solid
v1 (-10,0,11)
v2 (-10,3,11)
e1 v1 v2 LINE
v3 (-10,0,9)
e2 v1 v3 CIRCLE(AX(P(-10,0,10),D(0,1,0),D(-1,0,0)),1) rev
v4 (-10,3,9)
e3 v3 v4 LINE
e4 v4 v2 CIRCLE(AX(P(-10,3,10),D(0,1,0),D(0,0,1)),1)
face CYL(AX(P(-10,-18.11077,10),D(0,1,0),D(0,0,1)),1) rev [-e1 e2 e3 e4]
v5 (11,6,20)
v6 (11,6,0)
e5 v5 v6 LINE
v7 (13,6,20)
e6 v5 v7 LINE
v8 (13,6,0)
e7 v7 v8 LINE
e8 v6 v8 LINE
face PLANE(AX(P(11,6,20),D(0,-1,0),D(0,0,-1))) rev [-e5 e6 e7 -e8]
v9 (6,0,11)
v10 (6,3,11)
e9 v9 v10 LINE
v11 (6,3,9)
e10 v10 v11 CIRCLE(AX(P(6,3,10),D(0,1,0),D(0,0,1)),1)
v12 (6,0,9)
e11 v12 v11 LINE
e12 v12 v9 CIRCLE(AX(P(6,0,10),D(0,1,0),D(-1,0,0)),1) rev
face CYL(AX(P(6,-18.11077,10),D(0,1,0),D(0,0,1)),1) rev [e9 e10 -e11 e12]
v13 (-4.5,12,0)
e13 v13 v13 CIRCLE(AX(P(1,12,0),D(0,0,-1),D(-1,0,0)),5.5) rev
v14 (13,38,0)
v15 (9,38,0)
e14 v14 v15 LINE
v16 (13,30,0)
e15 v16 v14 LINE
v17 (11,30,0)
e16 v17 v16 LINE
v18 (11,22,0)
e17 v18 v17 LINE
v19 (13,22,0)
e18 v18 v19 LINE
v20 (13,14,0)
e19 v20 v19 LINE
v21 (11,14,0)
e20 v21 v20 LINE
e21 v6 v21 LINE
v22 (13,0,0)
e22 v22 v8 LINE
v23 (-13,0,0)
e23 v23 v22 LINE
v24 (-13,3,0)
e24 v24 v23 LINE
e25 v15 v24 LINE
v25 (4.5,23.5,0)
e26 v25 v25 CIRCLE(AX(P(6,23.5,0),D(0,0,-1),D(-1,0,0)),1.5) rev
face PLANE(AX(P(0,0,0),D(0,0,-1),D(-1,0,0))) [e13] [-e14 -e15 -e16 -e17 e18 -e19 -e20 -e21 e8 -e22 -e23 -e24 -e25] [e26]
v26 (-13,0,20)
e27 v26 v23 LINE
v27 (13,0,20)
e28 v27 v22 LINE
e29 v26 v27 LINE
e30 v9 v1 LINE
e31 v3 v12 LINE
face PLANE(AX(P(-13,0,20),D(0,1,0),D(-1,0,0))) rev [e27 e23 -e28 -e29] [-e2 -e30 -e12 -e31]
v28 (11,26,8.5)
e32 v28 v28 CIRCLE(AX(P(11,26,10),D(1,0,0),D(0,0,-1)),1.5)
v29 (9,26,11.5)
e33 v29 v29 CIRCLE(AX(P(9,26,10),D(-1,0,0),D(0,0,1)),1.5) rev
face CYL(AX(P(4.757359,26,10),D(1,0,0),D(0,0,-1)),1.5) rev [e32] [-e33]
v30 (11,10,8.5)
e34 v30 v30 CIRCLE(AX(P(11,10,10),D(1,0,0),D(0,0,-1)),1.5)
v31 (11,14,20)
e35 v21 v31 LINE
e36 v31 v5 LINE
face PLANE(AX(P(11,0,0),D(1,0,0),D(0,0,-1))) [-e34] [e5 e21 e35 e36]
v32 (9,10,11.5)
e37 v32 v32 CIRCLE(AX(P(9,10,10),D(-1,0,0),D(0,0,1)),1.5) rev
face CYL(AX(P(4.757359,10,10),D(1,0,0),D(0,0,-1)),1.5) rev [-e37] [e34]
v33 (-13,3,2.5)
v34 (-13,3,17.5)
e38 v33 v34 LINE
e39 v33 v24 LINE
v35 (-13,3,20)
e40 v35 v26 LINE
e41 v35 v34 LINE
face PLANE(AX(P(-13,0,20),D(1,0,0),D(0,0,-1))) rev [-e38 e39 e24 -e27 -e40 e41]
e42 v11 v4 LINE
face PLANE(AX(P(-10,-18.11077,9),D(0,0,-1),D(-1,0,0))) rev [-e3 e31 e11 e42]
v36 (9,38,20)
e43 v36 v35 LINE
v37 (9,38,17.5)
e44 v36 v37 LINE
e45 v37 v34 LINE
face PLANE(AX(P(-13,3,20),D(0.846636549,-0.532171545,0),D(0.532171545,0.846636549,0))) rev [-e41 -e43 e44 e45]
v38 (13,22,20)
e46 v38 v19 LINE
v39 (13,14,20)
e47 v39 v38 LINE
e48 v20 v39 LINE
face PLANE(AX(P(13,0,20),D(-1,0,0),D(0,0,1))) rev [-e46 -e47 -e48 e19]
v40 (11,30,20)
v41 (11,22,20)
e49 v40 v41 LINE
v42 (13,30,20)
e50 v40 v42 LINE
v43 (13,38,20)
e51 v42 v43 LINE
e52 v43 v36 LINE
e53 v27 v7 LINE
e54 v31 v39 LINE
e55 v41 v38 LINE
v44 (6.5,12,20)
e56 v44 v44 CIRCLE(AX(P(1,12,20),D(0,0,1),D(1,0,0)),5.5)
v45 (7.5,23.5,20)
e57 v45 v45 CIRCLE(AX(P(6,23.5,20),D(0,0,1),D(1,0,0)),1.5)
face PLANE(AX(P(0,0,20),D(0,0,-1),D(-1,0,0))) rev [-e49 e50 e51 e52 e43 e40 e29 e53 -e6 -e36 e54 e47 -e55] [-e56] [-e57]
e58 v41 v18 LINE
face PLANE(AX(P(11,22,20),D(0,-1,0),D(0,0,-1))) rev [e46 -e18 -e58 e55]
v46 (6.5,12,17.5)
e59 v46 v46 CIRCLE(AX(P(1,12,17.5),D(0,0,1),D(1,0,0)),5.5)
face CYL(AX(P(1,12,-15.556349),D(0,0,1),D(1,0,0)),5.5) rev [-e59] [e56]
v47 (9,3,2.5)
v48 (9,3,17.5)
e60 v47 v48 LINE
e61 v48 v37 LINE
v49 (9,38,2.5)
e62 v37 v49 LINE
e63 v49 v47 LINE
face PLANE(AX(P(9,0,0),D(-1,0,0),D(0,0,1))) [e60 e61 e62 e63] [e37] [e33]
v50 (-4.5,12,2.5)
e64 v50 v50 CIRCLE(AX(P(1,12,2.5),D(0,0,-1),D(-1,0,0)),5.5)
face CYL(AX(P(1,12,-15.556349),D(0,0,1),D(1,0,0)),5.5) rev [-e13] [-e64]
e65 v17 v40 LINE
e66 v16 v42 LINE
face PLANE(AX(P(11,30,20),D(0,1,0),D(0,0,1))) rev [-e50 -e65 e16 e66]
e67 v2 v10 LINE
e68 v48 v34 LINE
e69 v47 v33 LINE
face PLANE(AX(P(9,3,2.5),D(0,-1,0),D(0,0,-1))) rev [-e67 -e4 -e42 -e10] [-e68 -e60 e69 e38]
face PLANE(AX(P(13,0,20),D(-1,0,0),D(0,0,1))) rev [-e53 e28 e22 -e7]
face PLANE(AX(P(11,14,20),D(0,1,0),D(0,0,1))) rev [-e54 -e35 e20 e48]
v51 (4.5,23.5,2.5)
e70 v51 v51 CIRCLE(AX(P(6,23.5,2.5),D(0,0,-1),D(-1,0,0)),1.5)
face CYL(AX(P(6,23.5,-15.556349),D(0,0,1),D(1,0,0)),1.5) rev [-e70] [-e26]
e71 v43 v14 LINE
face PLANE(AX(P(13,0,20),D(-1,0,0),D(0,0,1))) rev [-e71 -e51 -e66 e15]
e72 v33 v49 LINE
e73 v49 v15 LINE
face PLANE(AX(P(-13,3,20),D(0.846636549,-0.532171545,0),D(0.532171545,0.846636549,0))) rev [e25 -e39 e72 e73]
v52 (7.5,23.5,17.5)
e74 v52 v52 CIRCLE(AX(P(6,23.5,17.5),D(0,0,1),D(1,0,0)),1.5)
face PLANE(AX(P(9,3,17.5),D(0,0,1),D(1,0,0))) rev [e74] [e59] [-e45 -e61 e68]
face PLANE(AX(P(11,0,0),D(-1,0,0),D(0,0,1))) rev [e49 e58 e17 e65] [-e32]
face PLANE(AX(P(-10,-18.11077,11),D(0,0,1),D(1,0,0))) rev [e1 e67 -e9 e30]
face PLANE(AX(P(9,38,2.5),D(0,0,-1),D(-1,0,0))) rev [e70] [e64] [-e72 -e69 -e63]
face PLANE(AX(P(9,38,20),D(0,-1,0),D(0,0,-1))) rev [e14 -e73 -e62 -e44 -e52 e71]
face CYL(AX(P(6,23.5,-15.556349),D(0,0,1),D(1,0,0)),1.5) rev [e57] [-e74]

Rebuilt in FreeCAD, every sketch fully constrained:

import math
import FreeCAD as App
import Part
import Sketcher
from FreeCAD import Vector
Q = App.Units.Quantity

doc = App.newDocument("Part")
body = doc.addObject("PartDesign::Body", "Body")

# Sketch on XY plane
sketch1 = doc.addObject("Sketcher::SketchObject", "Sketch")
body.addObject(sketch1)
sketch1.AttachmentSupport = (doc.XY_Plane, [""])
sketch1.MapMode = "FlatFace"
sketch1.addGeometry(Part.LineSegment(Vector(-13, 0, 0), Vector(13, 0, 0)), False)
sketch1.addGeometry(Part.LineSegment(Vector(13, 0, 0), Vector(13, 38, 0)), False)
sketch1.addGeometry(Part.LineSegment(Vector(13, 38, 0), Vector(9, 38, 0)), False)
sketch1.addGeometry(Part.LineSegment(Vector(9, 38, 0), Vector(-13, 3, 0)), False)
sketch1.addGeometry(Part.LineSegment(Vector(-13, 3, 0), Vector(-13, 0, 0)), False)
sketch1.addConstraint(Sketcher.Constraint("Coincident", 0, 2, 1, 1))
sketch1.addConstraint(Sketcher.Constraint("Coincident", 1, 2, 2, 1))
sketch1.addConstraint(Sketcher.Constraint("Coincident", 2, 2, 3, 1))
sketch1.addConstraint(Sketcher.Constraint("Coincident", 3, 2, 4, 1))
sketch1.addConstraint(Sketcher.Constraint("Coincident", 4, 2, 0, 1))
sketch1.addConstraint(Sketcher.Constraint("Horizontal", 0))
sketch1.addConstraint(Sketcher.Constraint("Vertical", 1))
sketch1.addConstraint(Sketcher.Constraint("Horizontal", 2))
sketch1.addConstraint(Sketcher.Constraint("Vertical", 4))
sketch1.addConstraint(Sketcher.Constraint("Symmetric", 0, 2, 4, 2, -1, 1))
sketch1.addConstraint(Sketcher.Constraint("DistanceX", 0, 1, 0, 2, Q("26 mm")))
sketch1.addConstraint(Sketcher.Constraint("DistanceX", 2, 2, 2, 1, Q("4 mm")))
sketch1.addConstraint(Sketcher.Constraint("DistanceY", 1, 1, 1, 2, Q("38 mm")))
sketch1.addConstraint(Sketcher.Constraint("DistanceY", 4, 2, 4, 1, Q("3 mm")))
pad1 = doc.addObject("PartDesign::Pad", "Pad")
body.addObject(pad1)
pad1.Profile = sketch1
pad1.Length = 20

# Sketch on YZ plane
sketch2 = doc.addObject("Sketcher::SketchObject", "Sketch001")
body.addObject(sketch2)
sketch2.AttachmentSupport = (doc.YZ_Plane, [""])
sketch2.MapMode = "FlatFace"
sketch2.AttachmentOffset = App.Placement(Vector(0, 0, 13), App.Rotation())
sketch2.addGeometry(Part.LineSegment(Vector(14, 20, 0), Vector(6, 20, 0)), False)
sketch2.addGeometry(Part.LineSegment(Vector(6, 20, 0), Vector(6, 0, 0)), False)
sketch2.addGeometry(Part.LineSegment(Vector(6, 0, 0), Vector(14, 0, 0)), False)
sketch2.addGeometry(Part.LineSegment(Vector(14, 0, 0), Vector(14, 20, 0)), False)
sketch2.addGeometry(Part.LineSegment(Vector(30, 20, 0), Vector(22, 20, 0)), False)
sketch2.addGeometry(Part.LineSegment(Vector(22, 20, 0), Vector(22, 0, 0)), False)
sketch2.addGeometry(Part.LineSegment(Vector(22, 0, 0), Vector(30, 0, 0)), False)
sketch2.addGeometry(Part.LineSegment(Vector(30, 0, 0), Vector(30, 20, 0)), False)
sketch2.addConstraint(Sketcher.Constraint("Coincident", 0, 2, 1, 1))
sketch2.addConstraint(Sketcher.Constraint("Coincident", 1, 2, 2, 1))
sketch2.addConstraint(Sketcher.Constraint("Coincident", 2, 2, 3, 1))
sketch2.addConstraint(Sketcher.Constraint("Coincident", 3, 2, 0, 1))
sketch2.addConstraint(Sketcher.Constraint("Coincident", 4, 2, 5, 1))
sketch2.addConstraint(Sketcher.Constraint("Coincident", 5, 2, 6, 1))
sketch2.addConstraint(Sketcher.Constraint("Coincident", 6, 2, 7, 1))
sketch2.addConstraint(Sketcher.Constraint("Coincident", 7, 2, 4, 1))
sketch2.addConstraint(Sketcher.Constraint("Horizontal", 0))
sketch2.addConstraint(Sketcher.Constraint("Vertical", 1))
sketch2.addConstraint(Sketcher.Constraint("Horizontal", 2))
sketch2.addConstraint(Sketcher.Constraint("Vertical", 3))
sketch2.addConstraint(Sketcher.Constraint("Horizontal", 4))
sketch2.addConstraint(Sketcher.Constraint("Vertical", 5))
sketch2.addConstraint(Sketcher.Constraint("Horizontal", 6))
sketch2.addConstraint(Sketcher.Constraint("Vertical", 7))
sketch2.addConstraint(Sketcher.Constraint("PointOnObject", 1, 2, -1))
sketch2.addConstraint(Sketcher.Constraint("PointOnObject", 5, 2, -1))
sketch2.addConstraint(Sketcher.Constraint("Horizontal", 3, 2, 4, 2))
sketch2.addConstraint(Sketcher.Constraint("Equal", 2, 4))
sketch2.addConstraint(Sketcher.Constraint("DistanceX", 0, 2, 0, 1, Q("8 mm")))
sketch2.addConstraint(Sketcher.Constraint("DistanceY", 1, 2, 1, 1, Q("20 mm")))
sketch2.addConstraint(Sketcher.Constraint("DistanceX", -1, 1, 0, 2, Q("6 mm")))
sketch2.addConstraint(Sketcher.Constraint("DistanceX", -1, 1, 4, 2, Q("22 mm")))
pocket1 = doc.addObject("PartDesign::Pocket", "Pocket")
body.addObject(pocket1)
pocket1.Profile = sketch2
pocket1.Length = 2

# Sketch on YZ plane
sketch3 = doc.addObject("Sketcher::SketchObject", "Sketch002")
body.addObject(sketch3)
sketch3.AttachmentSupport = (doc.YZ_Plane, [""])
sketch3.MapMode = "FlatFace"
sketch3.AttachmentOffset = App.Placement(Vector(0, 0, -13), App.Rotation())
sketch3.addGeometry(Part.LineSegment(Vector(38, 2, 0), Vector(3, 2, 0)), False)
sketch3.addGeometry(Part.LineSegment(Vector(3, 2, 0), Vector(3, 18, 0)), False)
sketch3.addGeometry(Part.LineSegment(Vector(3, 18, 0), Vector(38, 18, 0)), False)
sketch3.addGeometry(Part.LineSegment(Vector(38, 18, 0), Vector(38, 2, 0)), False)
sketch3.addConstraint(Sketcher.Constraint("Coincident", 0, 2, 1, 1))
sketch3.addConstraint(Sketcher.Constraint("Coincident", 1, 2, 2, 1))
sketch3.addConstraint(Sketcher.Constraint("Coincident", 2, 2, 3, 1))
sketch3.addConstraint(Sketcher.Constraint("Coincident", 3, 2, 0, 1))
sketch3.addConstraint(Sketcher.Constraint("Horizontal", 0))
sketch3.addConstraint(Sketcher.Constraint("Vertical", 1))
sketch3.addConstraint(Sketcher.Constraint("Horizontal", 2))
sketch3.addConstraint(Sketcher.Constraint("Vertical", 3))
sketch3.addConstraint(Sketcher.Constraint("DistanceX", 0, 2, 0, 1, Q("35 mm")))
sketch3.addConstraint(Sketcher.Constraint("DistanceY", 1, 1, 1, 2, Q("15 mm")))
sketch3.addConstraint(Sketcher.Constraint("DistanceX", -1, 1, 0, 2, Q("3 mm")))
sketch3.addConstraint(Sketcher.Constraint("DistanceY", -1, 1, 0, 2, Q("2.5 mm")))
pocket2 = doc.addObject("PartDesign::Pocket", "Pocket001")
body.addObject(pocket2)
pocket2.Profile = sketch3
pocket2.Length = 22
pocket2.Reversed = True

# Sketch on XY plane
sketch4 = doc.addObject("Sketcher::SketchObject", "Sketch003")
body.addObject(sketch4)
sketch4.AttachmentSupport = (doc.XY_Plane, [""])
sketch4.MapMode = "FlatFace"
sketch4.AttachmentOffset = App.Placement(Vector(0, 0, 20), App.Rotation())
sketch4.addGeometry(Part.Circle(Vector(6, 23.5, 0), Vector(0, 0, 1), 1.5), False)
sketch4.addGeometry(Part.Circle(Vector(1, 12, 0), Vector(0, 0, 1), 5.5), False)
sketch4.addConstraint(Sketcher.Constraint("Diameter", 0, Q("3 mm")))
sketch4.addConstraint(Sketcher.Constraint("Diameter", 1, Q("11 mm")))
sketch4.addConstraint(Sketcher.Constraint("DistanceX", -1, 1, 0, 3, Q("6 mm")))
sketch4.addConstraint(Sketcher.Constraint("DistanceX", -1, 1, 1, 3, Q("1 mm")))
sketch4.addConstraint(Sketcher.Constraint("DistanceY", -1, 1, 1, 3, Q("12 mm")))
sketch4.addConstraint(Sketcher.Constraint("DistanceY", -1, 1, 0, 3, Q("23.5 mm")))
pocket3 = doc.addObject("PartDesign::Pocket", "Pocket002")
body.addObject(pocket3)
pocket3.Profile = sketch4
pocket3.Length = 20

# Sketch on YZ plane
sketch5 = doc.addObject("Sketcher::SketchObject", "Sketch004")
body.addObject(sketch5)
sketch5.AttachmentSupport = (doc.YZ_Plane, [""])
sketch5.MapMode = "FlatFace"
sketch5.AttachmentOffset = App.Placement(Vector(0, 0, 11), App.Rotation())
sketch5.addGeometry(Part.Circle(Vector(26, 10, 0), Vector(0, 0, 1), 1.5), False)
sketch5.addGeometry(Part.Circle(Vector(10, 10, 0), Vector(0, 0, 1), 1.5), False)
sketch5.addConstraint(Sketcher.Constraint("Equal", 0, 1))
sketch5.addConstraint(Sketcher.Constraint("Horizontal", 0, 3, 1, 3))
sketch5.addConstraint(Sketcher.Constraint("Diameter", 0, Q("3 mm")))
sketch5.addConstraint(Sketcher.Constraint("DistanceX", -1, 1, 0, 3, Q("26 mm")))
sketch5.addConstraint(Sketcher.Constraint("DistanceY", -1, 1, 0, 3, Q("10 mm")))
sketch5.addConstraint(Sketcher.Constraint("DistanceX", -1, 1, 1, 3, Q("10 mm")))
pocket4 = doc.addObject("PartDesign::Pocket", "Pocket003")
body.addObject(pocket4)
pocket4.Profile = sketch5
pocket4.Length = 2

# Sketch on XZ plane
sketch6 = doc.addObject("Sketcher::SketchObject", "Sketch005")
body.addObject(sketch6)
sketch6.AttachmentSupport = (doc.XZ_Plane, [""])
sketch6.MapMode = "FlatFace"
sketch6.AttachmentOffset = App.Placement(Vector(0, 0, -3), App.Rotation())
sketch6.addGeometry(Part.LineSegment(Vector(6, 9, 0), Vector(-10, 9, 0)), False)
sketch6.addGeometry(Part.ArcOfCircle(Part.Circle(Vector(-10, 10, 0), Vector(0, 0, 1), 1), math.radians(90), math.radians(270)), False)
sketch6.addGeometry(Part.LineSegment(Vector(-10, 11, 0), Vector(6, 11, 0)), False)
sketch6.addGeometry(Part.ArcOfCircle(Part.Circle(Vector(6, 10, 0), Vector(0, 0, 1), 1), math.radians(-90), math.radians(90)), False)
sketch6.addConstraint(Sketcher.Constraint("Tangent", 0, 2, 1, 2))
sketch6.addConstraint(Sketcher.Constraint("Tangent", 1, 1, 2, 1))
sketch6.addConstraint(Sketcher.Constraint("Tangent", 2, 2, 3, 2))
sketch6.addConstraint(Sketcher.Constraint("Tangent", 3, 1, 0, 1))
sketch6.addConstraint(Sketcher.Constraint("Horizontal", 0))
sketch6.addConstraint(Sketcher.Constraint("Horizontal", 2))
sketch6.addConstraint(Sketcher.Constraint("Radius", 1, Q("1 mm")))
sketch6.addConstraint(Sketcher.Constraint("DistanceX", 0, 2, 0, 1, Q("16 mm")))
sketch6.addConstraint(Sketcher.Constraint("DistanceX", 1, 3, -1, 1, Q("10 mm")))
sketch6.addConstraint(Sketcher.Constraint("DistanceY", -1, 1, 1, 3, Q("10 mm")))
pocket5 = doc.addObject("PartDesign::Pocket", "Pocket004")
body.addObject(pocket5)
pocket5.Profile = sketch6
pocket5.Length = 3
pocket5.Reversed = True

doc.recompute()
